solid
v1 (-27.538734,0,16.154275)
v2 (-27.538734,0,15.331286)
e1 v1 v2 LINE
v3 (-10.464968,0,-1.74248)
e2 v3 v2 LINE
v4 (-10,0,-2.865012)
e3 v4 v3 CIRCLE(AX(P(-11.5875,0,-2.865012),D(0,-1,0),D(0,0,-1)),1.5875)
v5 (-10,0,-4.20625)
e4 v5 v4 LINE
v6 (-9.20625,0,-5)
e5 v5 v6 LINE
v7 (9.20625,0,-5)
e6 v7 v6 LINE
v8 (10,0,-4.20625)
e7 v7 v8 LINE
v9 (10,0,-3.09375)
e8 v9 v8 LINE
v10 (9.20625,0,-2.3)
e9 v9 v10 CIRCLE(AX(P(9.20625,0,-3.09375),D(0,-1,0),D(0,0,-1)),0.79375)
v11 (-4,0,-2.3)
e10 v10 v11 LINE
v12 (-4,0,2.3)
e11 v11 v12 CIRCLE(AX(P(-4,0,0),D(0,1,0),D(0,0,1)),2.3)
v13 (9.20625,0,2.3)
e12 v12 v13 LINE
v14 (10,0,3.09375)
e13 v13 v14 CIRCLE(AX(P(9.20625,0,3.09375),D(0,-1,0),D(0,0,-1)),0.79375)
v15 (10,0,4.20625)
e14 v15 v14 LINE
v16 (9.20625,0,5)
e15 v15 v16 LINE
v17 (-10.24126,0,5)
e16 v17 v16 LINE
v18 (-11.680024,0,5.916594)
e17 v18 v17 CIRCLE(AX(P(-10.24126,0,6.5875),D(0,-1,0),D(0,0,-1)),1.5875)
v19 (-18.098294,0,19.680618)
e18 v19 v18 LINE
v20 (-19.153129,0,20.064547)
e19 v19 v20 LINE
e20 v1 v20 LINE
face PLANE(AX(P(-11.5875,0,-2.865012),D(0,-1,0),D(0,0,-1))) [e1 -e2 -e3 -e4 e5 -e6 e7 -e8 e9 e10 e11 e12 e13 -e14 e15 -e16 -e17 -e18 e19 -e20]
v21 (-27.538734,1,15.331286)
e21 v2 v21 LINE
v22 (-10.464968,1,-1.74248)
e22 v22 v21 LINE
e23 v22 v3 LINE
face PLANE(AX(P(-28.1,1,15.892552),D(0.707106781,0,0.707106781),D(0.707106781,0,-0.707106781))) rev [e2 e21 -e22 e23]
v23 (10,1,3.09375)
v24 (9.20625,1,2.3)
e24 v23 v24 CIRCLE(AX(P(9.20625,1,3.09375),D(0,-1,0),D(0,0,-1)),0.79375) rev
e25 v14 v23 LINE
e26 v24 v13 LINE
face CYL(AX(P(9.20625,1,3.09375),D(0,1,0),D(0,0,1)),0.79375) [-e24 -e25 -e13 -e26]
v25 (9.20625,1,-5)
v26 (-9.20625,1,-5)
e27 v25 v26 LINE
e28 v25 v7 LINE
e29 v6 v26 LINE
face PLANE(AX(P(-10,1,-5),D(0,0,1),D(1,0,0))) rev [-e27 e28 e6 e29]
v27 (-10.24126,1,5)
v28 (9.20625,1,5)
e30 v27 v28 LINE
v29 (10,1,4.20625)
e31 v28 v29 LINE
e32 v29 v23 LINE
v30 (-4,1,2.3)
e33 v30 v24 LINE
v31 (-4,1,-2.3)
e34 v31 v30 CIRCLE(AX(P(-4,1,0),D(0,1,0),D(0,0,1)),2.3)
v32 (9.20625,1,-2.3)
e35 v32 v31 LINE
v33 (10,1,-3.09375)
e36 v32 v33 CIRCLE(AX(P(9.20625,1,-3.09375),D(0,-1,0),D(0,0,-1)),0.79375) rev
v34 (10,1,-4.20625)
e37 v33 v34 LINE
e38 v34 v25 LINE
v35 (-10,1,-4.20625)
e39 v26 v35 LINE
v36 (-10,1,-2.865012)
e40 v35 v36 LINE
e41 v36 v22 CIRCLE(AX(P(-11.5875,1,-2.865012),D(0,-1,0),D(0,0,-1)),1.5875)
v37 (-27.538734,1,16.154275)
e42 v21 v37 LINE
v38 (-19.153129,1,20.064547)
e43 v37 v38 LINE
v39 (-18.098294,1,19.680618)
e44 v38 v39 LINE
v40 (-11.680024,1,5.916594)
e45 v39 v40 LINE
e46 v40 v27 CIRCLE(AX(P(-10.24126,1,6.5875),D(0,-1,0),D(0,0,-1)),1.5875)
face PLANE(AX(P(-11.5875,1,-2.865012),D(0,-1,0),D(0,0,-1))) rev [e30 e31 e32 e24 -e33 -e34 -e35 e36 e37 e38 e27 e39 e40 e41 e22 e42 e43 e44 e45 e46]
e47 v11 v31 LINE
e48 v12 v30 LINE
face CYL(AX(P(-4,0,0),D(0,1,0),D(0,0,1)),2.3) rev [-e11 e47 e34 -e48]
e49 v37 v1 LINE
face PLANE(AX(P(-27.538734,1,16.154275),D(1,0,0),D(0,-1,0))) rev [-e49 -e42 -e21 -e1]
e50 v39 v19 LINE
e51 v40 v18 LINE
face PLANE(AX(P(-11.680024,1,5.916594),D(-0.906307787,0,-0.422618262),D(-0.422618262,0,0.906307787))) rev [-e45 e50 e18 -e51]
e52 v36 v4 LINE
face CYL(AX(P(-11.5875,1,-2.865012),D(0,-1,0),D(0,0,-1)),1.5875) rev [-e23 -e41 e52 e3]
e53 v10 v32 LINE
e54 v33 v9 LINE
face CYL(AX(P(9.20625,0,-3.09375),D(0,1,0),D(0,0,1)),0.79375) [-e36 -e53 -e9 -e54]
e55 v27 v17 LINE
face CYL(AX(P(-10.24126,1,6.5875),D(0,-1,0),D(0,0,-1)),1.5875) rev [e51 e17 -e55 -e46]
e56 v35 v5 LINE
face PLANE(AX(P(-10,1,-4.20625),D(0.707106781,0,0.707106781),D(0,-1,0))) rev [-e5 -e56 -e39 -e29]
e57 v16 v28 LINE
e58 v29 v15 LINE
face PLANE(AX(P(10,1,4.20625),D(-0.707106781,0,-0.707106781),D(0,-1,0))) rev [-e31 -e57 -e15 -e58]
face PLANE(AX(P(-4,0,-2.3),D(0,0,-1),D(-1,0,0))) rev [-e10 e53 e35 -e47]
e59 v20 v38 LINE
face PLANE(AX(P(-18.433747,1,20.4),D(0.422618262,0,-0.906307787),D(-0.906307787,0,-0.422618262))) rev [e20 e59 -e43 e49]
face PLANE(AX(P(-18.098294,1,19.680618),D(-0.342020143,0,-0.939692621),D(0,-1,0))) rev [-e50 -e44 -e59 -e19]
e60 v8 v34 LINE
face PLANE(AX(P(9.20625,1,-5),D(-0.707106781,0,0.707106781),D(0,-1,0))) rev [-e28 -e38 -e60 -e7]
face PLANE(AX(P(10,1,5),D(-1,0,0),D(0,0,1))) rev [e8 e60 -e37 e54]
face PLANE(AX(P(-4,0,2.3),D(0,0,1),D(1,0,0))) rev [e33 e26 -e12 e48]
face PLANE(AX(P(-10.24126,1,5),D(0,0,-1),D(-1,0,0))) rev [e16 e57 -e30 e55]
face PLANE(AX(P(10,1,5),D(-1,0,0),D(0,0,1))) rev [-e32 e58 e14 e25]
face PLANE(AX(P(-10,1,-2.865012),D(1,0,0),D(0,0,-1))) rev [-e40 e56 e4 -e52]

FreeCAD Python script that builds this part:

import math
import FreeCAD as App
import Part
import Sketcher
from FreeCAD import Vector
Q = App.Units.Quantity


def edges_at(feature, points):
    """Names of the edges that pass closest to the given points."""
    edges = feature.Shape.Edges
    near = lambda p: min(range(len(edges)), key=lambda i: edges[i].distToShape(Part.Vertex(*p))[0])
    return sorted({f"Edge{near(p) + 1}" for p in points})

doc = App.newDocument("Part")
body = doc.addObject("PartDesign::Body", "Body")

sketch1 = body.newObject("Sketcher::SketchObject", "Sketch")
sketch1.AttachmentSupport = (doc.getObject("XZ_Plane"), [""])
sketch1.MapMode = "FlatFace"
sketch1.addGeometry(Part.LineSegment(Vector(-18.4, 20.4, 0), Vector(-11.7, 5.9, 0)), False)
sketch1.addGeometry(Part.ArcOfCircle(Part.Circle(Vector(-10.2, 6.6, 0), Vector(0, 0, 1), 1.6), math.radians(-155), math.radians(-90)), False)
sketch1.addGeometry(Part.LineSegment(Vector(-10.2, 5, 0), Vector(10, 5, 0)), False)
sketch1.addGeometry(Part.LineSegment(Vector(10, 5, 0), Vector(10, -5, 0)), False)
sketch1.addGeometry(Part.LineSegment(Vector(10, -5, 0), Vector(-10, -5, 0)), False)
sketch1.addGeometry(Part.LineSegment(Vector(-10, -5, 0), Vector(-10, -2.9, 0)), False)
sketch1.addGeometry(Part.ArcOfCircle(Part.Circle(Vector(-11.6, -2.9, 0), Vector(0, 0, 1), 1.6), math.radians(0), math.radians(45)), False)
sketch1.addGeometry(Part.LineSegment(Vector(-10.5, -1.7, 0), Vector(-28.1, 15.9, 0)), False)
sketch1.addGeometry(Part.LineSegment(Vector(-28.1, 15.9, 0), Vector(-18.4, 20.4, 0)), False)
sketch1.addConstraint(Sketcher.Constraint("Tangent", 0, 2, 1, 1))
sketch1.addConstraint(Sketcher.Constraint("Tangent", 1, 2, 2, 1))
sketch1.addConstraint(Sketcher.Constraint("Coincident", 2, 2, 3, 1))
sketch1.addConstraint(Sketcher.Constraint("Coincident", 3, 2, 4, 1))
sketch1.addConstraint(Sketcher.Constraint("Coincident", 4, 2, 5, 1))
sketch1.addConstraint(Sketcher.Constraint("Tangent", 5, 2, 6, 1))
sketch1.addConstraint(Sketcher.Constraint("Tangent", 6, 2, 7, 1))
sketch1.addConstraint(Sketcher.Constraint("Coincident", 7, 2, 8, 1))
sketch1.addConstraint(Sketcher.Constraint("Coincident", 8, 2, 0, 1))
sketch1.addConstraint(Sketcher.Constraint("Horizontal", 2))
sketch1.addConstraint(Sketcher.Constraint("Vertical", 3))
sketch1.addConstraint(Sketcher.Constraint("Horizontal", 4))
sketch1.addConstraint(Sketcher.Constraint("Vertical", 5))
sketch1.addConstraint(Sketcher.Constraint("Equal", 1, 6))
sketch1.addConstraint(Sketcher.Constraint("Symmetric", 2, 2, 4, 2, -1, 1))
sketch1.addConstraint(Sketcher.Constraint("Perpendicular", 0, 8))
sketch1.addConstraint(Sketcher.Constraint("DistanceX", 4, 2, 4, 1, 20.0))
sketch1.addConstraint(Sketcher.Constraint("DistanceY", 3, 2, 3, 1, 10.0))
sketch1.addConstraint(Sketcher.Constraint("Angle", 0, Q("-65 deg")))
sketch1.addConstraint(Sketcher.Constraint("Angle", 7, Q("135 deg")))
sketch1.addConstraint(Sketcher.Constraint("DistanceX", 7, 2, -1, 1, 28.1))
sketch1.addConstraint(Sketcher.Constraint("DistanceY", -1, 1, 8, 2, 20.4))
sketch1.addConstraint(Sketcher.Constraint("Radius", 1, 1.5875))
sketch1.addConstraint(Sketcher.Constraint("DistanceX", 2, 1, 2, 2, 20.24126))
pad1 = body.newObject("PartDesign::Pad", "Pad")
pad1.Profile = sketch1
pad1.Length = 1
pad1.Reversed = True

sketch2 = body.newObject("Sketcher::SketchObject", "Sketch001")
sketch2.AttachmentSupport = (doc.getObject("XZ_Plane"), [""])
sketch2.MapMode = "FlatFace"
sketch2.AttachmentOffset = App.Placement(Vector(0, 0, -1), App.Rotation())
sketch2.addGeometry(Part.LineSegment(Vector(10, -2.3, 0), Vector(-4, -2.3, 0)), False)
sketch2.addGeometry(Part.ArcOfCircle(Part.Circle(Vector(-4, 0, 0), Vector(0, 0, 1), 2.3), math.radians(90), math.radians(270)), False)
sketch2.addGeometry(Part.LineSegment(Vector(-4, 2.3, 0), Vector(10, 2.3, 0)), False)
sketch2.addGeometry(Part.LineSegment(Vector(10, 2.3, 0), Vector(10, -2.3, 0)), False)
sketch2.addConstraint(Sketcher.Constraint("Tangent", 0, 2, 1, 2))
sketch2.addConstraint(Sketcher.Constraint("Tangent", 1, 1, 2, 1))
sketch2.addConstraint(Sketcher.Constraint("Coincident", 2, 2, 3, 1))
sketch2.addConstraint(Sketcher.Constraint("Coincident", 3, 2, 0, 1))
sketch2.addConstraint(Sketcher.Constraint("Horizontal", 0))
sketch2.addConstraint(Sketcher.Constraint("Horizontal", 2))
sketch2.addConstraint(Sketcher.Constraint("Vertical", 3))
sketch2.addConstraint(Sketcher.Constraint("PointOnObject", 1, 3, -1))
sketch2.addConstraint(Sketcher.Constraint("Radius", 1, 2.3))
sketch2.addConstraint(Sketcher.Constraint("DistanceX", 0, 2, 0, 1, 14.0))
sketch2.addConstraint(Sketcher.Constraint("DistanceX", 1, 3, -1, 1, 4.0))
pocket1 = body.newObject("PartDesign::Pocket", "Pocket")
pocket1.Profile = sketch2
pocket1.Type = "ThroughAll"
pocket1.Reversed = True
doc.recompute()

fillet = body.newObject("PartDesign::Fillet", "Fillet")
fillet.Base = (pocket1, edges_at(pocket1, [(10, 0.5, -2.3), (10, 0.5, 2.3)]))
fillet.Radius = 0.79375
doc.recompute()

chamfer = body.newObject("PartDesign::Chamfer", "Chamfer")
chamfer.Base = (fillet, edges_at(fillet, [(10, 0.5, 5)]))
chamfer.Size = 0.79375
doc.recompute()

chamfer2 = body.newObject("PartDesign::Chamfer", "Chamfer001")
chamfer2.Base = (chamfer, edges_at(chamfer, [(-18.434, 0.5, 20.4)]))
chamfer2.Size = 0.79375
doc.recompute()

chamfer3 = body.newObject("PartDesign::Chamfer", "Chamfer002")
chamfer3.Base = (chamfer2, edges_at(chamfer2, [(-28.1, 0.5, 15.893)]))
chamfer3.ChamferType = "Two distances"
chamfer3.Size = 0.619289
chamfer3.Size2 = 0.79375
doc.recompute()

chamfer4 = body.newObject("PartDesign::Chamfer", "Chamfer003")
chamfer4.Base = (chamfer3, edges_at(chamfer3, [(-10, 0.5, -5)]))
chamfer4.Size = 0.79375
doc.recompute()

chamfer5 = body.newObject("PartDesign::Chamfer", "Chamfer004")
chamfer5.Base = (chamfer4, edges_at(chamfer4, [(10, 0.5, -5)]))
chamfer5.Size = 0.79375

doc.recompute()
